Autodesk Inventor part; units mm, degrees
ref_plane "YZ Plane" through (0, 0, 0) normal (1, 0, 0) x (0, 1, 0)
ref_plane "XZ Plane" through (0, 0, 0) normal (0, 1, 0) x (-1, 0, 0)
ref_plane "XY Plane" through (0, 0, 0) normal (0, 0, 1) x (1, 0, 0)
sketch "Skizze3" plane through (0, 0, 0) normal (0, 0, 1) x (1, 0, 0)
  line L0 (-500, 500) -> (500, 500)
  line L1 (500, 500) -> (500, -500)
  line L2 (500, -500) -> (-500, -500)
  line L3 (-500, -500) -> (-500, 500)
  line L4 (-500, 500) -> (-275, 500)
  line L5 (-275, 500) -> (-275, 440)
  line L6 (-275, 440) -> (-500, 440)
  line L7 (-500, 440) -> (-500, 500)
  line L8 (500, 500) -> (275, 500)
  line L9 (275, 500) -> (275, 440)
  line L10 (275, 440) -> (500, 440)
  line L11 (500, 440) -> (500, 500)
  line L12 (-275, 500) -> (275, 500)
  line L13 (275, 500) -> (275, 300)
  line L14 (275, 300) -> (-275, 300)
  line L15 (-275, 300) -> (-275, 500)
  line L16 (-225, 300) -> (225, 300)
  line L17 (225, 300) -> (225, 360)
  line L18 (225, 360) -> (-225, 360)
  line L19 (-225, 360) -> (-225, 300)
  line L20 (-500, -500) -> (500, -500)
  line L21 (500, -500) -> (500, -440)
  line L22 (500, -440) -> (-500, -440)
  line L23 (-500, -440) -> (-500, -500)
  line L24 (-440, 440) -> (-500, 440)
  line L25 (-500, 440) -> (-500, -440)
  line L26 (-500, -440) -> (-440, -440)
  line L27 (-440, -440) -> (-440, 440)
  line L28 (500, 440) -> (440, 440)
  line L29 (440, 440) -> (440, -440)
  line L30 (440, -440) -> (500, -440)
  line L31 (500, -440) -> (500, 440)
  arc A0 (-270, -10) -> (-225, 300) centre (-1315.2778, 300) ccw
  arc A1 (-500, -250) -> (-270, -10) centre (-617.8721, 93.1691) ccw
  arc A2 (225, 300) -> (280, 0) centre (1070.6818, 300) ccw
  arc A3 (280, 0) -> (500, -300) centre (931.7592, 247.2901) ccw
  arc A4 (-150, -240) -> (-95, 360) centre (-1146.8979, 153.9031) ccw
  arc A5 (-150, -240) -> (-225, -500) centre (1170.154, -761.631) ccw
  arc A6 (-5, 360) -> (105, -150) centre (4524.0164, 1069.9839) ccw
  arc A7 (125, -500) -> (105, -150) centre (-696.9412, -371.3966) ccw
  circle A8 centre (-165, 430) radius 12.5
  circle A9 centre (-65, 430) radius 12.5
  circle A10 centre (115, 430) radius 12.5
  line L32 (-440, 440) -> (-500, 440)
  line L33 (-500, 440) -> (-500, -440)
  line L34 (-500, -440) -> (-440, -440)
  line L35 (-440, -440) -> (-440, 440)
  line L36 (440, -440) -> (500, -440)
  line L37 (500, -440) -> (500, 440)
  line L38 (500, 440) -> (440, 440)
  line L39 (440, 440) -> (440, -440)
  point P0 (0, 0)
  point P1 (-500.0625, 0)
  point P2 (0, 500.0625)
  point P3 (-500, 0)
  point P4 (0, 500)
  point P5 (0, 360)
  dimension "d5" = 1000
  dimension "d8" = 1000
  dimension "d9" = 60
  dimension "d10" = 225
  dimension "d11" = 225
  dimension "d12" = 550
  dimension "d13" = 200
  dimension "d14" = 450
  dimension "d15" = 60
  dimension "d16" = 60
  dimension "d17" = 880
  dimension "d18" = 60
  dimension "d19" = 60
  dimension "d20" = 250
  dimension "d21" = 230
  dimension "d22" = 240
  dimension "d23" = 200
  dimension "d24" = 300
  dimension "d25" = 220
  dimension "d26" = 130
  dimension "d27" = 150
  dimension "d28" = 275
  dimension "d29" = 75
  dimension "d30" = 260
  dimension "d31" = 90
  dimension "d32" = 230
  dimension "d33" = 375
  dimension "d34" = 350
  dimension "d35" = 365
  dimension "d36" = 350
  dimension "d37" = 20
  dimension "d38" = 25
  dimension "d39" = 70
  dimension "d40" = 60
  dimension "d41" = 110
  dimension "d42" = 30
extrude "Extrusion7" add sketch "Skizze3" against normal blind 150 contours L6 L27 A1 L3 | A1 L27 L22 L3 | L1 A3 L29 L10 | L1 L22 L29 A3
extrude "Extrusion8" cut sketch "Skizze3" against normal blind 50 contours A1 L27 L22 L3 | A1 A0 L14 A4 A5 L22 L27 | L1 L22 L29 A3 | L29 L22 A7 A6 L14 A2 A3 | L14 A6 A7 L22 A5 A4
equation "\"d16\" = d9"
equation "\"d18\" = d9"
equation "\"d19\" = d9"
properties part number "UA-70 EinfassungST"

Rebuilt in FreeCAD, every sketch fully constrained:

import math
import FreeCAD as App
import Part
import Sketcher
Q = App.Units.Quantity

doc = App.newDocument("Part")
body = doc.addObject("PartDesign::Body", "Body")
body.AllowCompound = True

# Sketch on XY plane
sketch1 = body.newObject("Sketcher::SketchObject", "Sketch")
sketch1.AttachmentSupport = (doc.getObject("XY_Plane"), [""])
sketch1.MapMode = "FlatFace"
sketch1.addGeometry(Part.LineSegment(App.Vector(-440, 440, 0), App.Vector(-500, 440, 0)), False)
sketch1.addGeometry(Part.LineSegment(App.Vector(-500, 440, 0), App.Vector(-500, -440, 0)), False)
sketch1.addGeometry(Part.LineSegment(App.Vector(-500, -440, 0), App.Vector(-440, -440, 0)), False)
sketch1.addGeometry(Part.LineSegment(App.Vector(-440, -440, 0), App.Vector(-440, 440, 0)), False)
sketch1.addGeometry(Part.LineSegment(App.Vector(500, 440, 0), App.Vector(440, 440, 0)), False)
sketch1.addGeometry(Part.LineSegment(App.Vector(440, 440, 0), App.Vector(440, -440, 0)), False)
sketch1.addGeometry(Part.LineSegment(App.Vector(440, -440, 0), App.Vector(500, -440, 0)), False)
sketch1.addGeometry(Part.LineSegment(App.Vector(500, -440, 0), App.Vector(500, 440, 0)), False)
sketch1.addConstraint(Sketcher.Constraint("Coincident", 0, 2, 1, 1))
sketch1.addConstraint(Sketcher.Constraint("Coincident", 1, 2, 2, 1))
sketch1.addConstraint(Sketcher.Constraint("Coincident", 2, 2, 3, 1))
sketch1.addConstraint(Sketcher.Constraint("Coincident", 3, 2, 0, 1))
sketch1.addConstraint(Sketcher.Constraint("Coincident", 4, 2, 5, 1))
sketch1.addConstraint(Sketcher.Constraint("Coincident", 5, 2, 6, 1))
sketch1.addConstraint(Sketcher.Constraint("Coincident", 6, 2, 7, 1))
sketch1.addConstraint(Sketcher.Constraint("Coincident", 7, 2, 4, 1))
sketch1.addConstraint(Sketcher.Constraint("Horizontal", 0))
sketch1.addConstraint(Sketcher.Constraint("Vertical", 1))
sketch1.addConstraint(Sketcher.Constraint("Horizontal", 2))
sketch1.addConstraint(Sketcher.Constraint("Vertical", 3))
sketch1.addConstraint(Sketcher.Constraint("Horizontal", 4))
sketch1.addConstraint(Sketcher.Constraint("Vertical", 5))
sketch1.addConstraint(Sketcher.Constraint("Horizontal", 6))
sketch1.addConstraint(Sketcher.Constraint("Vertical", 7))
sketch1.addConstraint(Sketcher.Constraint("Symmetric", 2, 2, 4, 2, -1, 1))
sketch1.addConstraint(Sketcher.Constraint("Symmetric", 0, 2, 6, 2, -1, 1))
sketch1.addConstraint(Sketcher.Constraint("Horizontal", 3, 2, 4, 2))
sketch1.addConstraint(Sketcher.Constraint("DistanceX", 0, 2, 0, 1, Q("60 mm")))
sketch1.addConstraint(Sketcher.Constraint("DistanceY", 1, 2, 1, 1, Q("880 mm")))
sketch1.addConstraint(Sketcher.Constraint("DistanceX", 3, 2, 4, 2, Q("880 mm")))
pad1 = body.newObject("PartDesign::Pad", "Pad")
pad1.Profile = sketch1
pad1.Length = 150
pad1.Reversed = True

# Sketch on XY plane
sketch2 = body.newObject("Sketcher::SketchObject", "Sketch001")
sketch2.AttachmentSupport = (doc.getObject("XY_Plane"), [""])
sketch2.MapMode = "FlatFace"
sketch2.addGeometry(Part.LineSegment(App.Vector(-500, -250, 0), App.Vector(-500, -440, 0)), False)
sketch2.addGeometry(Part.LineSegment(App.Vector(-500, -440, 0), App.Vector(500, -440, 0)), False)
sketch2.addGeometry(Part.LineSegment(App.Vector(500, -440, 0), App.Vector(500, -300, 0)), False)
sketch2.addGeometry(Part.ArcOfCircle(Part.Circle(App.Vector(932, 247, 0), App.Vector(0, 0, 1), 697), math.radians(-159), math.radians(-128)), False)
sketch2.addGeometry(Part.ArcOfCircle(Part.Circle(App.Vector(1071, 300, 0), App.Vector(0, 0, 1), 846), math.radians(180), math.radians(201)), False)
sketch2.addGeometry(Part.LineSegment(App.Vector(225, 300, 0), App.Vector(-225, 300, 0)), False)
sketch2.addGeometry(Part.ArcOfCircle(Part.Circle(App.Vector(-1315, 300, 0), App.Vector(0, 0, 1), 1090), math.radians(-16.52), math.radians(0)), False)
sketch2.addGeometry(Part.ArcOfCircle(Part.Circle(App.Vector(-618, 93, 0), App.Vector(0, 0, 1), 363), math.radians(-71), math.radians(-17)), False)
sketch2.addConstraint(Sketcher.Constraint("Coincident", 0, 2, 1, 1))
sketch2.addConstraint(Sketcher.Constraint("Coincident", 1, 2, 2, 1))
sketch2.addConstraint(Sketcher.Constraint("Coincident", 2, 2, 3, 2))
sketch2.addConstraint(Sketcher.Constraint("Tangent", 3, 1, 4, 2))
sketch2.addConstraint(Sketcher.Constraint("Coincident", 4, 1, 5, 1))
sketch2.addConstraint(Sketcher.Constraint("Coincident", 5, 2, 6, 2))
sketch2.addConstraint(Sketcher.Constraint("Tangent", 6, 1, 7, 2))
sketch2.addConstraint(Sketcher.Constraint("Coincident", 7, 1, 0, 1))
sketch2.addConstraint(Sketcher.Constraint("Vertical", 0))
sketch2.addConstraint(Sketcher.Constraint("Horizontal", 1))
sketch2.addConstraint(Sketcher.Constraint("Vertical", 2))
sketch2.addConstraint(Sketcher.Constraint("Horizontal", 5))
sketch2.addConstraint(Sketcher.Constraint("PointOnObject", 3, 1, -1))
sketch2.addConstraint(Sketcher.Constraint("Horizontal", 4, 3, 6, 3))
sketch2.addConstraint(Sketcher.Constraint("DistanceX", 1, 1, 1, 2, Q("1000 mm")))
sketch2.addConstraint(Sketcher.Constraint("DistanceX", 5, 2, 5, 1, Q("450 mm")))
sketch2.addConstraint(Sketcher.Constraint("DistanceY", -1, 1, 4, 3, Q("300 mm")))
sketch2.addConstraint(Sketcher.Constraint("DistanceY", 2, 2, -1, 1, Q("300 mm")))
sketch2.addConstraint(Sketcher.Constraint("DistanceX", -1, 1, 4, 1, Q("225 mm")))
sketch2.addConstraint(Sketcher.Constraint("DistanceY", -1, 1, 5, 2, Q("300 mm")))
sketch2.addConstraint(Sketcher.Constraint("DistanceY", 7, 1, -1, 1, Q("250 mm")))
sketch2.addConstraint(Sketcher.Constraint("DistanceX", 4, 1, 2, 2, Q("275 mm")))
sketch2.addConstraint(Sketcher.Constraint("DistanceY", 0, 2, 0, 1, Q("190 mm")))
sketch2.addConstraint(Sketcher.Constraint("Radius", 3, Q("697.0957 mm")))
sketch2.addConstraint(Sketcher.Constraint("Radius", 6, Q("1090.2778 mm")))
sketch2.addConstraint(Sketcher.Constraint("Radius", 7, Q("362.8483 mm")))
pocket1 = body.newObject("PartDesign::Pocket", "Pocket")
pocket1.Profile = sketch2
pocket1.Length = 50

doc.recompute()
